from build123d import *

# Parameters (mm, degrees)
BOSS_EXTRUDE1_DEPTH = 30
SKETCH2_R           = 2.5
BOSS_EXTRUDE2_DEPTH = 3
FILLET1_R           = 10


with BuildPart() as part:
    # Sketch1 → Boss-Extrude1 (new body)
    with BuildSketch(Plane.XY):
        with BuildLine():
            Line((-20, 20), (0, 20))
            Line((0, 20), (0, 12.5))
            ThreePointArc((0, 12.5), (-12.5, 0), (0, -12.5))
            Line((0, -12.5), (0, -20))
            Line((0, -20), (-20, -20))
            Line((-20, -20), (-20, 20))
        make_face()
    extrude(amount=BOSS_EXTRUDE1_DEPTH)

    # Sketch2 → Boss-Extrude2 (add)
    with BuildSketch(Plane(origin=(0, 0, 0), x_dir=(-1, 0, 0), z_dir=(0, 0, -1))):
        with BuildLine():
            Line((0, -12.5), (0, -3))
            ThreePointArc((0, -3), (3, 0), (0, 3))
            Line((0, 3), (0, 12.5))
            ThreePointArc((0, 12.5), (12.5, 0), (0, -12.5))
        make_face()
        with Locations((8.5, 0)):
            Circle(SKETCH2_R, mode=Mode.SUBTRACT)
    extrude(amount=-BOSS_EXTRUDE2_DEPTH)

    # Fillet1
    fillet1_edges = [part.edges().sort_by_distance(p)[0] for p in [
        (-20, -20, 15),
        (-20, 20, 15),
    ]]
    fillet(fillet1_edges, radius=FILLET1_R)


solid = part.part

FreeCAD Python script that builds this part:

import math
import FreeCAD as App
import Part
import Sketcher
from FreeCAD import Vector


def edges_at(feature, points):
    """Names of the edges that pass closest to the given points."""
    edges = feature.Shape.Edges
    near = lambda p: min(range(len(edges)), key=lambda i: edges[i].distToShape(Part.Vertex(*p))[0])
    return sorted({f"Edge{near(p) + 1}" for p in points})

doc = App.newDocument("Part")
body = doc.addObject("PartDesign::Body", "Body")

# Sketch on XY plane
sketch1 = body.newObject("Sketcher::SketchObject", "Sketch")
sketch1.AttachmentSupport = (doc.getObject("XY_Plane"), [""])
sketch1.MapMode = "FlatFace"
sketch1.addGeometry([
    Part.LineSegment(Vector(0, 20, 0), Vector(-20, 20, 0)),  # 0
    Part.LineSegment(Vector(-20, 20, 0), Vector(-20, -20, 0)),  # 1
    Part.LineSegment(Vector(-20, -20, 0), Vector(0, -20, 0)),  # 2
    Part.LineSegment(Vector(0, -20, 0), Vector(0, -12, 0)),  # 3
    Part.ArcOfCircle(Part.Circle(Vector(0, 0, 0), Vector(0, 0, 1), 12), math.radians(90), math.radians(270)),  # 4
    Part.LineSegment(Vector(0, 12, 0), Vector(0, 20, 0)),  # 5
], False)
sketch1.addConstraint([
    Sketcher.Constraint("Coincident", 0, 2, 1, 1),
    Sketcher.Constraint("Coincident", 1, 2, 2, 1),
    Sketcher.Constraint("Coincident", 2, 2, 3, 1),
    Sketcher.Constraint("Coincident", 3, 2, 4, 2),
    Sketcher.Constraint("Coincident", 4, 1, 5, 1),
    Sketcher.Constraint("Coincident", 5, 2, 0, 1),
    Sketcher.Constraint("Horizontal", 0),
    Sketcher.Constraint("Vertical", 1),
    Sketcher.Constraint("Horizontal", 2),
    Sketcher.Constraint("Vertical", 3),
    Sketcher.Constraint("Vertical", 5),
    Sketcher.Constraint("Coincident", 4, 3, -1, 1),
    Sketcher.Constraint("Symmetric", 2, 2, 5, 2, -1, 1),
    Sketcher.Constraint("PointOnObject", 2, 2, -2),
    Sketcher.Constraint("Radius", 4, 12.5),
    Sketcher.Constraint("DistanceX", 0, 2, 0, 1, 20.0),
    Sketcher.Constraint("DistanceY", 1, 2, 1, 1, 40.0),
])
pad1 = body.newObject("PartDesign::Pad", "Pad")
pad1.Profile = sketch1
pad1.Length = 30

# Sketch on XY plane
sketch2 = body.newObject("Sketcher::SketchObject", "Sketch001")
sketch2.AttachmentSupport = (doc.getObject("XY_Plane"), [""])
sketch2.MapMode = "FlatFace"
sketch2.addGeometry([
    Part.LineSegment(Vector(0, -3, 0), Vector(0, -12.5, 0)),  # 0
    Part.ArcOfCircle(Part.Circle(Vector(0, 0, 0), Vector(0, 0, 1), 12.5), math.radians(90), math.radians(270)),  # 1
    Part.LineSegment(Vector(0, 12.5, 0), Vector(0, 3, 0)),  # 2
    Part.ArcOfCircle(Part.Circle(Vector(0, 0, 0), Vector(0, 0, 1), 3), math.radians(90), math.radians(270)),  # 3
    Part.Circle(Vector(-8.5, 0, 0), Vector(0, 0, 1), 2.5),  # 4
], False)
sketch2.addConstraint([
    Sketcher.Constraint("Coincident", 0, 2, 1, 2),
    Sketcher.Constraint("Coincident", 1, 1, 2, 1),
    Sketcher.Constraint("Coincident", 2, 2, 3, 1),
    Sketcher.Constraint("Coincident", 3, 2, 0, 1),
    Sketcher.Constraint("Vertical", 0),
    Sketcher.Constraint("Vertical", 2),
    Sketcher.Constraint("Coincident", 1, 3, -1, 1),
    Sketcher.Constraint("Coincident", 3, 3, -1, 1),
    Sketcher.Constraint("PointOnObject", 4, 3, -1),
    Sketcher.Constraint("PointOnObject", 0, 2, -2),
    Sketcher.Constraint("PointOnObject", 1, 1, -2),
    Sketcher.Constraint("Diameter", 4, 5.0),
    Sketcher.Constraint("Radius", 3, 3.0),
    Sketcher.Constraint("Radius", 1, 12.5),
    Sketcher.Constraint("DistanceX", 4, 3, -1, 1, 8.5),
])
pad2 = body.newObject("PartDesign::Pad", "Pad001")
pad2.Profile = sketch2
pad2.Length = 3
doc.recompute()

fillet = body.newObject("PartDesign::Fillet", "Fillet")
fillet.Base = (pad2, edges_at(pad2, [(-20, -20, 15), (-20, 20, 15)]))
fillet.Radius = 10

doc.recompute()
